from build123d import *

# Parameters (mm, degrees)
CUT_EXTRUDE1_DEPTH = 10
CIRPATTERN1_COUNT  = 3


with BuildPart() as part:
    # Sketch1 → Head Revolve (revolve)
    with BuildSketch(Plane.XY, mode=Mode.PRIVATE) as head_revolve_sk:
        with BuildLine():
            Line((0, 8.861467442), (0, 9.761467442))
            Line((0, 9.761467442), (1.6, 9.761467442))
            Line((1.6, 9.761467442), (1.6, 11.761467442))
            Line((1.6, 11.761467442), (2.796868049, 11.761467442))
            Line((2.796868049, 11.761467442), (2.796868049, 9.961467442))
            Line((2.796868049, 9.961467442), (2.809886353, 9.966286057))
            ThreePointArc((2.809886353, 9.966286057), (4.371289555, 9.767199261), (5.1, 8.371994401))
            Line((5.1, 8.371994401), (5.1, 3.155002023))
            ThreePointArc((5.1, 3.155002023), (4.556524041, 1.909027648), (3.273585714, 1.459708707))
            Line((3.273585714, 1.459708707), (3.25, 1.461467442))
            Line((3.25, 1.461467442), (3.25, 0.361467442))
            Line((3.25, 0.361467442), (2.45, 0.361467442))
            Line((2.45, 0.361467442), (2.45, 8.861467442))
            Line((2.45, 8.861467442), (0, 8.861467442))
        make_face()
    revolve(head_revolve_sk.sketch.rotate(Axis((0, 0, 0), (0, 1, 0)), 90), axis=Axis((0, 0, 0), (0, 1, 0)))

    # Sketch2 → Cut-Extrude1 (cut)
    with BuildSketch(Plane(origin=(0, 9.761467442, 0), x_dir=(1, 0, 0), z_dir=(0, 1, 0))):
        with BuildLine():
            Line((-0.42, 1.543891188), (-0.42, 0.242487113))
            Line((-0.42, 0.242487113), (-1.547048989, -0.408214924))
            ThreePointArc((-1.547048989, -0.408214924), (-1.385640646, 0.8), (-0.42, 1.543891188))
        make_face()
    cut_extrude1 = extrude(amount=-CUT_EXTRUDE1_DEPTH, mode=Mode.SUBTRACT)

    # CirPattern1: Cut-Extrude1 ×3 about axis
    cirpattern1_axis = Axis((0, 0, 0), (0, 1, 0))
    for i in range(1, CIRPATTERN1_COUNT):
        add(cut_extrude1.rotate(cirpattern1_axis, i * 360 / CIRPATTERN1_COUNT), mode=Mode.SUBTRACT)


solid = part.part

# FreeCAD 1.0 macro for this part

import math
import FreeCAD as App
import Part
import Sketcher

V = App.Vector
Q = App.Units.Quantity

doc = App.newDocument("Part")
body = doc.addObject("PartDesign::Body", "Body")

sketch1 = doc.addObject("Sketcher::SketchObject", "Sketch")
body.addObject(sketch1)
sketch1.AttachmentSupport = (doc.XY_Plane, [""])
sketch1.MapMode = "FlatFace"
sketch1.addGeometry([
    Part.LineSegment(V(0, 9.761, 0), V(0, 8.861, 0)),
    Part.LineSegment(V(0, 8.861, 0), V(2.45, 8.861, 0)),
    Part.LineSegment(V(2.45, 8.861, 0), V(2.45, 0.361, 0)),
    Part.LineSegment(V(2.45, 0.361, 0), V(3.25, 0.361, 0)),
    Part.LineSegment(V(3.25, 0.361, 0), V(3.25, 1.461, 0)),
    Part.LineSegment(V(3.25, 1.461, 0), V(3.274, 1.46, 0)),
    Part.ArcOfCircle(Part.Circle(V(3.4, 3.155, 0), V(0, 0, 1), 1.7), math.radians(-94), math.radians(0)),
    Part.LineSegment(V(5.1, 3.155, 0), V(5.1, 8.372, 0)),
    Part.ArcOfCircle(Part.Circle(V(3.4, 8.372, 0), V(0, 0, 1), 1.7), math.radians(0), math.radians(110)),
    Part.LineSegment(V(2.81, 9.966, 0), V(2.797, 9.961, 0)),
    Part.LineSegment(V(2.797, 9.961, 0), V(2.797, 11.761, 0)),
    Part.LineSegment(V(2.797, 11.761, 0), V(1.6, 11.761, 0)),
    Part.LineSegment(V(1.6, 11.761, 0), V(1.6, 9.761, 0)),
    Part.LineSegment(V(1.6, 9.761, 0), V(0, 9.761, 0)),
], False)
sketch1.addConstraint([
    Sketcher.Constraint("Coincident", 0, 2, 1, 1),
    Sketcher.Constraint("Coincident", 1, 2, 2, 1),
    Sketcher.Constraint("Coincident", 2, 2, 3, 1),
    Sketcher.Constraint("Coincident", 3, 2, 4, 1),
    Sketcher.Constraint("Coincident", 4, 2, 5, 1),
    Sketcher.Constraint("Tangent", 5, 2, 6, 1),
    Sketcher.Constraint("Tangent", 6, 2, 7, 1),
    Sketcher.Constraint("Tangent", 7, 2, 8, 1),
    Sketcher.Constraint("Tangent", 8, 2, 9, 1),
    Sketcher.Constraint("Coincident", 9, 2, 10, 1),
    Sketcher.Constraint("Coincident", 10, 2, 11, 1),
    Sketcher.Constraint("Coincident", 11, 2, 12, 1),
    Sketcher.Constraint("Coincident", 12, 2, 13, 1),
    Sketcher.Constraint("Coincident", 13, 2, 0, 1),
    Sketcher.Constraint("Vertical", 0),
    Sketcher.Constraint("Horizontal", 1),
    Sketcher.Constraint("Vertical", 2),
    Sketcher.Constraint("Horizontal", 3),
    Sketcher.Constraint("Vertical", 4),
    Sketcher.Constraint("Vertical", 7),
    Sketcher.Constraint("Vertical", 10),
    Sketcher.Constraint("Horizontal", 11),
    Sketcher.Constraint("Vertical", 12),
    Sketcher.Constraint("Horizontal", 13),
    Sketcher.Constraint("Equal", 6, 8),
    Sketcher.Constraint("PointOnObject", 0, 2, -2),
    Sketcher.Constraint("Radius", 6, 1.7),
    Sketcher.Constraint("DistanceY", 12, 2, 12, 1, 2.0),
    Sketcher.Constraint("DistanceX", 3, 1, 3, 2, 0.8),
    Sketcher.Constraint("DistanceX", 13, 2, 13, 1, 1.6),
    Sketcher.Constraint("DistanceY", 0, 2, 0, 1, 0.9),
    Sketcher.Constraint("DistanceY", 2, 2, 2, 1, 8.5),
    Sketcher.Constraint("DistanceY", 4, 1, 4, 2, 1.1),
    Sketcher.Constraint("DistanceY", 10, 1, 10, 2, 1.8),
    Sketcher.Constraint("DistanceX", 1, 1, 1, 2, 2.45),
    Sketcher.Constraint("DistanceX", -1, 1, 6, 3, 3.4),
    Sketcher.Constraint("DistanceX", 11, 2, 11, 1, 1.196868),
    Sketcher.Constraint("Distance", 5, 0.023651),
    Sketcher.Constraint("Distance", 9, 0.013881),
    Sketcher.Constraint("DistanceY", -1, 1, 5, 2, 1.459709),
])
revolution = doc.addObject("PartDesign::Revolution", "Revolution")
body.addObject(revolution)
revolution.Profile = sketch1
revolution.ReferenceAxis = (sketch1, ["V_Axis"])
revolution.Angle = 360

sketch2 = doc.addObject("Sketcher::SketchObject", "Sketch001")
body.addObject(sketch2)
sketch2.AttachmentSupport = (doc.XZ_Plane, [""])
sketch2.MapMode = "FlatFace"
sketch2.AttachmentOffset = App.Placement(V(0, 0, -9.761467), App.Rotation())
sketch2.addGeometry([
    Part.LineSegment(V(-0.4, -0.2, 0), V(-0.4, -1.5, 0)),
    Part.ArcOfCircle(Part.Circle(V(0, 0, 0), V(0, 0, 1), 1.6), math.radians(165), math.radians(255)),
    Part.LineSegment(V(-1.5, 0.4, 0), V(-0.4, -0.2, 0)),
], False)
sketch2.addConstraint([
    Sketcher.Constraint("Coincident", 0, 2, 1, 2),
    Sketcher.Constraint("Coincident", 1, 1, 2, 1),
    Sketcher.Constraint("Coincident", 2, 2, 0, 1),
    Sketcher.Constraint("Vertical", 0),
    Sketcher.Constraint("Coincident", 1, 3, -1, 1),
    Sketcher.Constraint("Radius", 1, 1.6),
    Sketcher.Constraint("Angle", 2, Q("-30 deg")),
    Sketcher.Constraint("DistanceX", 0, 2, -1, 1, 0.42),
    Sketcher.Constraint("DistanceY", 0, 2, 0, 1, 1.301404),
])
pocket1 = doc.addObject("PartDesign::Pocket", "Pocket")
body.addObject(pocket1)
pocket1.Profile = sketch2
pocket1.Length = 10
pocket1.Reversed = True
doc.recompute()

polarpattern = doc.addObject("PartDesign::PolarPattern", "PolarPattern")
body.addObject(polarpattern)
polarpattern.Originals = [pocket1]
polarpattern.Axis = (doc.Y_Axis, [""])
polarpattern.Angle = 360
polarpattern.Occurrences = 3
body.Tip = polarpattern

doc.recompute()
